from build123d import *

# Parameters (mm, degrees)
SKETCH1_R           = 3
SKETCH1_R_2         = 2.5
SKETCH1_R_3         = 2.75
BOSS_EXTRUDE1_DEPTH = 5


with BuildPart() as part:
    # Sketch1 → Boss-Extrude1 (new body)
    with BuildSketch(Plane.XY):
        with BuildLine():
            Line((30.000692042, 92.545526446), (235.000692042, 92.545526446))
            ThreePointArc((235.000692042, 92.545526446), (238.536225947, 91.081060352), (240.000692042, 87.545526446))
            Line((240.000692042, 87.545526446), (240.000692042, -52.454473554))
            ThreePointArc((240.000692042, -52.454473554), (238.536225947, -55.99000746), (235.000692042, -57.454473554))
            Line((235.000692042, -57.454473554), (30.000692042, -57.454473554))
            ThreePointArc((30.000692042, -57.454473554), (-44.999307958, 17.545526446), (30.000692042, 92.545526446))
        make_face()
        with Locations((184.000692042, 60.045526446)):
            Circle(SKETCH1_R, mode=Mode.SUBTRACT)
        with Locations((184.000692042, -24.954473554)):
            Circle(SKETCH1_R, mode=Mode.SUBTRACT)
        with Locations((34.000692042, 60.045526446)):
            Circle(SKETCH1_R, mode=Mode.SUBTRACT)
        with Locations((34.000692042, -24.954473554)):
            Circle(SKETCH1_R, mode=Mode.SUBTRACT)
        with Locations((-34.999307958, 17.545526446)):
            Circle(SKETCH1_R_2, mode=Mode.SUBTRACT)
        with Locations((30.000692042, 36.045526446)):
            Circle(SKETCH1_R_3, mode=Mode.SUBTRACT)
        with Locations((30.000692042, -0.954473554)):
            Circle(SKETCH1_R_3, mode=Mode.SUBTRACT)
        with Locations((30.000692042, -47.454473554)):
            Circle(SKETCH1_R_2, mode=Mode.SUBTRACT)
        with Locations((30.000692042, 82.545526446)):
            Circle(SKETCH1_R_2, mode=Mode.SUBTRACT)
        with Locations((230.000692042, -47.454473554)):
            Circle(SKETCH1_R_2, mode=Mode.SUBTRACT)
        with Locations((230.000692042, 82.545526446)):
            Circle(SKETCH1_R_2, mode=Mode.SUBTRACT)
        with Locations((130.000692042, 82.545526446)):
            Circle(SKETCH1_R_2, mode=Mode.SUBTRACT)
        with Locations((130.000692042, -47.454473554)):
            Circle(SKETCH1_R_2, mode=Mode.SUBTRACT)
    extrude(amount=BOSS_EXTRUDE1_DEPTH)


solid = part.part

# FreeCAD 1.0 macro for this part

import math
import FreeCAD as App
import Part
import Sketcher

doc = App.newDocument("Part")
params = doc.addObject("Spreadsheet::Sheet", "Params")
for row, (alias, value) in enumerate([
    ("sketch1_diameter", "5 mm"),
    ("sketch1_diameter2", "6 mm"),
    ("sketch1_radius", "75 mm"),
    ("sketch1_radius2", "5 mm"),
    ("sketch1_diameter3", "5.5 mm"),
    ("pad1_length", "5 mm"),
], start=1):
    params.set(f"A{row}", alias)
    params.set(f"B{row}", "=" + value)
    params.setAlias(f"B{row}", alias)

body = doc.addObject("PartDesign::Body", "Body")

sketch1 = doc.addObject("Sketcher::SketchObject", "Sketch")
body.addObject(sketch1)
sketch1.AttachmentSupport = (doc.XY_Plane, [""])
sketch1.MapMode = "FlatFace"
sketch1.addGeometry([
    Part.LineSegment(App.Vector(235.000692, 92.545526, 0), App.Vector(30.000692, 92.545526, 0)),
    Part.ArcOfCircle(Part.Circle(App.Vector(30.000692, 17.545526, 0), App.Vector(0, 0, 1), 75), math.radians(90), math.radians(270)),
    Part.LineSegment(App.Vector(30.000692, -57.454474, 0), App.Vector(235.000692, -57.454474, 0)),
    Part.ArcOfCircle(Part.Circle(App.Vector(235.000692, -52.454474, 0), App.Vector(0, 0, 1), 5), math.radians(-90), math.radians(0)),
    Part.LineSegment(App.Vector(240.000692, -52.454474, 0), App.Vector(240.000692, 87.545526, 0)),
    Part.ArcOfCircle(Part.Circle(App.Vector(235.000692, 87.545526, 0), App.Vector(0, 0, 1), 5), math.radians(0), math.radians(90)),
    Part.Circle(App.Vector(230.000692, -47.454474, 0), App.Vector(0, 0, 1), 2.5),
    Part.Circle(App.Vector(184.000692, -24.954474, 0), App.Vector(0, 0, 1), 3),
    Part.Circle(App.Vector(130.000692, -47.454474, 0), App.Vector(0, 0, 1), 2.5),
    Part.Circle(App.Vector(34.000692, -24.954474, 0), App.Vector(0, 0, 1), 3),
    Part.Circle(App.Vector(30.000692, -47.454474, 0), App.Vector(0, 0, 1), 2.5),
    Part.Circle(App.Vector(30.000692, -0.954474, 0), App.Vector(0, 0, 1), 2.75),
    Part.Circle(App.Vector(184.000692, 60.045526, 0), App.Vector(0, 0, 1), 3),
    Part.Circle(App.Vector(230.000692, 82.545526, 0), App.Vector(0, 0, 1), 2.5),
    Part.Circle(App.Vector(130.000692, 82.545526, 0), App.Vector(0, 0, 1), 2.5),
    Part.Circle(App.Vector(-34.999308, 17.545526, 0), App.Vector(0, 0, 1), 2.5),
    Part.Circle(App.Vector(30.000692, 36.045526, 0), App.Vector(0, 0, 1), 2.75),
    Part.Circle(App.Vector(34.000692, 60.045526, 0), App.Vector(0, 0, 1), 3),
    Part.Circle(App.Vector(30.000692, 82.545526, 0), App.Vector(0, 0, 1), 2.5),
], False)
sketch1.addConstraint([
    Sketcher.Constraint("Tangent", 0, 2, 1, 1),
    Sketcher.Constraint("Tangent", 1, 2, 2, 1),
    Sketcher.Constraint("Tangent", 2, 2, 3, 1),
    Sketcher.Constraint("Tangent", 3, 2, 4, 1),
    Sketcher.Constraint("Tangent", 4, 2, 5, 1),
    Sketcher.Constraint("Tangent", 5, 2, 0, 1),
    Sketcher.Constraint("Horizontal", 0),
    Sketcher.Constraint("Horizontal", 2),
    Sketcher.Constraint("Vertical", 4),
    Sketcher.Constraint("Equal", 3, 5),
    Sketcher.Constraint("Equal", 6, 8),
    Sketcher.Constraint("Equal", 7, 9),
    Sketcher.Constraint("Equal", 8, 10),
    Sketcher.Constraint("Equal", 9, 12),
    Sketcher.Constraint("Equal", 10, 13),
    Sketcher.Constraint("Equal", 13, 14),
    Sketcher.Constraint("Equal", 14, 15),
    Sketcher.Constraint("Equal", 11, 16),
    Sketcher.Constraint("Equal", 12, 17),
    Sketcher.Constraint("Equal", 15, 18),
    Sketcher.Constraint("Horizontal", 6, 3, 8, 3),
    Sketcher.Constraint("Horizontal", 7, 3, 9, 3),
    Sketcher.Constraint("Horizontal", 8, 3, 10, 3),
    Sketcher.Constraint("Horizontal", 13, 3, 14, 3),
    Sketcher.Constraint("Horizontal", 1, 3, 15, 3),
    Sketcher.Constraint("Horizontal", 12, 3, 17, 3),
    Sketcher.Constraint("Horizontal", 14, 3, 18, 3),
    Sketcher.Constraint("Vertical", 1, 3, 10, 3),
    Sketcher.Constraint("Vertical", 10, 3, 11, 3),
    Sketcher.Constraint("Vertical", 7, 3, 12, 3),
    Sketcher.Constraint("Vertical", 6, 3, 13, 3),
    Sketcher.Constraint("Vertical", 8, 3, 14, 3),
    Sketcher.Constraint("Vertical", 11, 3, 16, 3),
    Sketcher.Constraint("Vertical", 9, 3, 17, 3),
    Sketcher.Constraint("Vertical", 16, 3, 18, 3),
    Sketcher.Constraint("Diameter", 6, 5.0),
    Sketcher.Constraint("Diameter", 7, 6.0),
    Sketcher.Constraint("Radius", 1, 75.0),
    Sketcher.Constraint("Radius", 3, 5.0),
    Sketcher.Constraint("Diameter", 11, 5.5),
    Sketcher.Constraint("DistanceX", 0, 2, 0, 1, 205.0),
    Sketcher.Constraint("DistanceX", 6, 3, 3, 3, 5.0),
    Sketcher.Constraint("DistanceY", 3, 3, 6, 3, 5.0),
    Sketcher.Constraint("DistanceX", 7, 3, 6, 3, 46.0),
    Sketcher.Constraint("DistanceX", 8, 3, 7, 3, 54.0),
    Sketcher.Constraint("DistanceX", 1, 3, 9, 3, 4.0),
    Sketcher.Constraint("DistanceY", 9, 3, 11, 3, 24.0),
    Sketcher.Constraint("DistanceY", 7, 3, 12, 3, 85.0),
    Sketcher.Constraint("DistanceY", 13, 3, 5, 3, 5.0),
    Sketcher.Constraint("DistanceX", 15, 3, 1, 3, 65.0),
    Sketcher.Constraint("DistanceY", 11, 3, 16, 3, 37.0),
    Sketcher.Constraint("DistanceY", 6, 3, 7, 3, 22.5),
    Sketcher.Constraint("DistanceX", -1, 1, 1, 3, 30.000692),
    Sketcher.Constraint("DistanceY", -1, 1, 1, 3, 17.545526),
])
sketch1.setExpression("Constraints[35]", "Params.sketch1_diameter")
sketch1.setExpression("Constraints[36]", "Params.sketch1_diameter2")
sketch1.setExpression("Constraints[37]", "Params.sketch1_radius")
sketch1.setExpression("Constraints[38]", "Params.sketch1_radius2")
sketch1.setExpression("Constraints[39]", "Params.sketch1_diameter3")
pad1 = doc.addObject("PartDesign::Pad", "Pad")
body.addObject(pad1)
pad1.Profile = sketch1
pad1.setExpression("Length", "Params.pad1_length")

doc.recompute()
